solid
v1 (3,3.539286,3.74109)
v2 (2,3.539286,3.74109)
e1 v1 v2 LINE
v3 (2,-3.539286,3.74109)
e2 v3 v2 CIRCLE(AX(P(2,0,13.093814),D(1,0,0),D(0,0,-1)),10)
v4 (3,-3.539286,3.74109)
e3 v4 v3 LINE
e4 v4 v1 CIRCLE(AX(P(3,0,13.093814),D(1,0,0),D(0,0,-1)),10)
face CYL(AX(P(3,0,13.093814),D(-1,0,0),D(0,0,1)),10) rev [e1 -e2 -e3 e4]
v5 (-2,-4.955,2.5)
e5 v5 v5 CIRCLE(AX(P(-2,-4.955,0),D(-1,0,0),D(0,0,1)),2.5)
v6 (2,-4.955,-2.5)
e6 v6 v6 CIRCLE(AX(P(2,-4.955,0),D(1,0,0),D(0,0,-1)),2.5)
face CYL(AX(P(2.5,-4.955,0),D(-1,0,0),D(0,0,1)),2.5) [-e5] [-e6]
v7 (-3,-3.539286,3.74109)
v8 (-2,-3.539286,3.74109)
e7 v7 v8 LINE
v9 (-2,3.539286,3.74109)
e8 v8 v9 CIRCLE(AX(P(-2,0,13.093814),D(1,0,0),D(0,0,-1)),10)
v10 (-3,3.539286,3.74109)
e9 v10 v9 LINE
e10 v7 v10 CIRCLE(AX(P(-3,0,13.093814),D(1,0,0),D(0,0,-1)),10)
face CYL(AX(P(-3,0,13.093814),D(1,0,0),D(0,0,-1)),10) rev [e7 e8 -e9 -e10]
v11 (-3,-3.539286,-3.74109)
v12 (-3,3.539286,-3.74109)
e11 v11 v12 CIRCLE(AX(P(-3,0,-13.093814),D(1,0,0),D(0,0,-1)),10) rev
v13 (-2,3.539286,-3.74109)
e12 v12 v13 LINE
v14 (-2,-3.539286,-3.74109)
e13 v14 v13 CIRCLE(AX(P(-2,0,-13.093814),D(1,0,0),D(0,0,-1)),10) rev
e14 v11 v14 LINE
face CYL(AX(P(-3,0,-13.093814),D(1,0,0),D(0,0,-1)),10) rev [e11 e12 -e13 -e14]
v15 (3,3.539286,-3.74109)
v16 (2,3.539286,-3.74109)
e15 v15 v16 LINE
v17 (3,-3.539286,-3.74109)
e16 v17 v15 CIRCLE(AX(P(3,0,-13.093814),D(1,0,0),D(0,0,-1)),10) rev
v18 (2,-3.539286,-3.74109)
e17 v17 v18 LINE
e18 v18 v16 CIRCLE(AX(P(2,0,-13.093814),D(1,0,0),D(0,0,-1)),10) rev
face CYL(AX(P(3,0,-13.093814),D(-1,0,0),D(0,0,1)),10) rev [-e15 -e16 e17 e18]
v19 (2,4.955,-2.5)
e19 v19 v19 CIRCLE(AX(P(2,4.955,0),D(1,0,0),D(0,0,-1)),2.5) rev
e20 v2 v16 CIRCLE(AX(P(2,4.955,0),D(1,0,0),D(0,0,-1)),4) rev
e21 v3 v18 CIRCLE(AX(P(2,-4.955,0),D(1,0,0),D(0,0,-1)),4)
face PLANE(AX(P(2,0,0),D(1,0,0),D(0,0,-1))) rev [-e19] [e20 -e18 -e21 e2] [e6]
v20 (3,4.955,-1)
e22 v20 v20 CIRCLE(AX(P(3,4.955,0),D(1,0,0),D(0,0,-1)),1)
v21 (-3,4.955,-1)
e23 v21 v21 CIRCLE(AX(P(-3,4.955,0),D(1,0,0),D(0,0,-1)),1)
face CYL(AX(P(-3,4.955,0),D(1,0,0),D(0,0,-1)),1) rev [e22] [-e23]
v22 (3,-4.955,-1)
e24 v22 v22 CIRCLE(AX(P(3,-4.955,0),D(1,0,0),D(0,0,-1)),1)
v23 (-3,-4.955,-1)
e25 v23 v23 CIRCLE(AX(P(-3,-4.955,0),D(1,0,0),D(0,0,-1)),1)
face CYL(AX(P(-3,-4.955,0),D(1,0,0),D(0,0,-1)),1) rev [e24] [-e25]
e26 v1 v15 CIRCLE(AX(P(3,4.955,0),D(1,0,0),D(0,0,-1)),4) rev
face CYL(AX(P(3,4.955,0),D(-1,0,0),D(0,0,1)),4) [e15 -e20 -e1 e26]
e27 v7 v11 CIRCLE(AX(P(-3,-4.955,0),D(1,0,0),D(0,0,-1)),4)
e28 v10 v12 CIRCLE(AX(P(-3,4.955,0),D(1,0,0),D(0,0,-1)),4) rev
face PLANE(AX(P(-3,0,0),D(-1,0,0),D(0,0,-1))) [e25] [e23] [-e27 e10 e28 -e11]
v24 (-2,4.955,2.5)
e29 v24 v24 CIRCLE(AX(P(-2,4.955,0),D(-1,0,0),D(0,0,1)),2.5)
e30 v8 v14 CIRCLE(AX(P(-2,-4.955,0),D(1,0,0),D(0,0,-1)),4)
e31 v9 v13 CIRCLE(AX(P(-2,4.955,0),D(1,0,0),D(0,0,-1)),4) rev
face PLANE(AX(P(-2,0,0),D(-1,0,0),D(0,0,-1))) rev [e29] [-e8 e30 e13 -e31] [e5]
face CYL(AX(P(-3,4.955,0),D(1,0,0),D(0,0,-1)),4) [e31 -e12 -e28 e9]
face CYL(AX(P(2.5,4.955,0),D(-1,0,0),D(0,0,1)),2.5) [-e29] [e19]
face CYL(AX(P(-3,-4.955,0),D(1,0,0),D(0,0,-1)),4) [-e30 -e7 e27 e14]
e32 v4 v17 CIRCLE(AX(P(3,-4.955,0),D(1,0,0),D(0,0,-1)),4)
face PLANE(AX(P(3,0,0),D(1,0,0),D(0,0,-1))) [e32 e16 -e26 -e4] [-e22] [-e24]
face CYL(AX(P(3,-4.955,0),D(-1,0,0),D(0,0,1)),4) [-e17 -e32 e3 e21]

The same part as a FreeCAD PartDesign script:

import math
import FreeCAD as App
import Part
import Sketcher

V = App.Vector

doc = App.newDocument("Part")
body = doc.addObject("PartDesign::Body", "Body")

sketch1 = body.newObject("Sketcher::SketchObject", "Sketch")
sketch1.AttachmentSupport = (doc.getObject("YZ_Plane"), [""])
sketch1.MapMode = "FlatFace"
sketch1.addGeometry(Part.Circle(V(-5, 0, 0), V(0, 0, 1), 2.5), False)
sketch1.addConstraint(Sketcher.Constraint("PointOnObject", 0, 3, -1))
sketch1.addConstraint(Sketcher.Constraint("Diameter", 0, 5.0))
sketch1.addConstraint(Sketcher.Constraint("DistanceX", 0, 3, -1, 1, 4.955))
pad1 = body.newObject("PartDesign::Pad", "Pad")
pad1.Profile = sketch1
pad1.Length = 5
pad1.Midplane = True
body2 = doc.addObject("PartDesign::Body", "Body001")

sketch2 = body2.newObject("Sketcher::SketchObject", "Sketch001")
sketch2.AttachmentSupport = (doc.getObject("YZ_Plane001"), [""])
sketch2.MapMode = "FlatFace"
sketch2.addGeometry(Part.Circle(V(5, 0, 0), V(0, 0, 1), 2.5), False)
sketch2.addConstraint(Sketcher.Constraint("PointOnObject", 0, 3, -1))
sketch2.addConstraint(Sketcher.Constraint("Diameter", 0, 5.0))
sketch2.addConstraint(Sketcher.Constraint("DistanceX", -1, 1, 0, 3, 4.955))
pad2 = body2.newObject("PartDesign::Pad", "Pad001")
pad2.Profile = sketch2
pad2.Length = 5
pad2.Midplane = True
body.AllowCompound = True
doc.recompute()

boolean = body.newObject("PartDesign::Boolean", "Boolean")
boolean.Type = "Fuse"
boolean.addObjects([body2])

sketch3 = body.newObject("Sketcher::SketchObject", "Sketch002")
sketch3.AttachmentSupport = (doc.getObject("YZ_Plane"), [""])
sketch3.MapMode = "FlatFace"
sketch3.AttachmentOffset = App.Placement(V(0, 0, 2.5), App.Rotation())
sketch3.addGeometry(Part.ArcOfCircle(Part.Circle(V(-5, 0, 0), V(0, 0, 1), 4), math.radians(69), math.radians(291)), False)
sketch3.addGeometry(Part.ArcOfCircle(Part.Circle(V(0, -13.1, 0), V(0, 0, 1), 10), math.radians(69), math.radians(111)), False)
sketch3.addGeometry(Part.ArcOfCircle(Part.Circle(V(5, 0, 0), V(0, 0, 1), 4), math.radians(-111), math.radians(111)), False)
sketch3.addGeometry(Part.ArcOfCircle(Part.Circle(V(0, 13.1, 0), V(0, 0, 1), 10), math.radians(-111), math.radians(-69)), False)
sketch3.addConstraint(Sketcher.Constraint("Tangent", 0, 2, 1, 2))
sketch3.addConstraint(Sketcher.Constraint("Tangent", 1, 1, 2, 1))
sketch3.addConstraint(Sketcher.Constraint("Tangent", 2, 2, 3, 2))
sketch3.addConstraint(Sketcher.Constraint("Tangent", 3, 1, 0, 1))
sketch3.addConstraint(Sketcher.Constraint("Equal", 0, 2))
sketch3.addConstraint(Sketcher.Constraint("Equal", 1, 3))
sketch3.addConstraint(Sketcher.Constraint("Symmetric", 0, 3, 2, 3, -1, 1))
sketch3.addConstraint(Sketcher.Constraint("PointOnObject", 0, 3, -1))
sketch3.addConstraint(Sketcher.Constraint("Radius", 0, 4.0))
sketch3.addConstraint(Sketcher.Constraint("Radius", 1, 10.0))
sketch3.addConstraint(Sketcher.Constraint("DistanceX", 0, 3, 2, 3, 9.91))
pad3 = body.newObject("PartDesign::Pad", "Pad002")
pad3.Profile = sketch3
pad3.Length = 1
pad3.Midplane = True
doc.recompute()

mirrored = body.newObject("PartDesign::Mirrored", "Mirrored")
mirrored.Originals = [pad3]
mirrored.MirrorPlane = (doc.getObject("YZ_Plane"), [""])
body.Tip = mirrored

sketch4 = body.newObject("Sketcher::SketchObject", "Sketch003")
sketch4.AttachmentSupport = (doc.getObject("YZ_Plane"), [""])
sketch4.MapMode = "FlatFace"
sketch4.AttachmentOffset = App.Placement(V(0, 0, 3), App.Rotation())
sketch4.addGeometry(Part.Circle(V(-5, 0, 0), V(0, 0, 1), 1), False)
sketch4.addGeometry(Part.Circle(V(5, 0, 0), V(0, 0, 1), 1), False)
sketch4.addConstraint(Sketcher.Constraint("Equal", 0, 1))
sketch4.addConstraint(Sketcher.Constraint("Symmetric", 0, 3, 1, 3, -1, 1))
sketch4.addConstraint(Sketcher.Constraint("PointOnObject", 0, 3, -1))
sketch4.addConstraint(Sketcher.Constraint("Diameter", 0, 2.0))
sketch4.addConstraint(Sketcher.Constraint("DistanceX", 0, 3, 1, 3, 9.91))
pocket1 = body.newObject("PartDesign::Pocket", "Pocket")
pocket1.Profile = sketch4
pocket1.Type = "ThroughAll"

doc.recompute()
